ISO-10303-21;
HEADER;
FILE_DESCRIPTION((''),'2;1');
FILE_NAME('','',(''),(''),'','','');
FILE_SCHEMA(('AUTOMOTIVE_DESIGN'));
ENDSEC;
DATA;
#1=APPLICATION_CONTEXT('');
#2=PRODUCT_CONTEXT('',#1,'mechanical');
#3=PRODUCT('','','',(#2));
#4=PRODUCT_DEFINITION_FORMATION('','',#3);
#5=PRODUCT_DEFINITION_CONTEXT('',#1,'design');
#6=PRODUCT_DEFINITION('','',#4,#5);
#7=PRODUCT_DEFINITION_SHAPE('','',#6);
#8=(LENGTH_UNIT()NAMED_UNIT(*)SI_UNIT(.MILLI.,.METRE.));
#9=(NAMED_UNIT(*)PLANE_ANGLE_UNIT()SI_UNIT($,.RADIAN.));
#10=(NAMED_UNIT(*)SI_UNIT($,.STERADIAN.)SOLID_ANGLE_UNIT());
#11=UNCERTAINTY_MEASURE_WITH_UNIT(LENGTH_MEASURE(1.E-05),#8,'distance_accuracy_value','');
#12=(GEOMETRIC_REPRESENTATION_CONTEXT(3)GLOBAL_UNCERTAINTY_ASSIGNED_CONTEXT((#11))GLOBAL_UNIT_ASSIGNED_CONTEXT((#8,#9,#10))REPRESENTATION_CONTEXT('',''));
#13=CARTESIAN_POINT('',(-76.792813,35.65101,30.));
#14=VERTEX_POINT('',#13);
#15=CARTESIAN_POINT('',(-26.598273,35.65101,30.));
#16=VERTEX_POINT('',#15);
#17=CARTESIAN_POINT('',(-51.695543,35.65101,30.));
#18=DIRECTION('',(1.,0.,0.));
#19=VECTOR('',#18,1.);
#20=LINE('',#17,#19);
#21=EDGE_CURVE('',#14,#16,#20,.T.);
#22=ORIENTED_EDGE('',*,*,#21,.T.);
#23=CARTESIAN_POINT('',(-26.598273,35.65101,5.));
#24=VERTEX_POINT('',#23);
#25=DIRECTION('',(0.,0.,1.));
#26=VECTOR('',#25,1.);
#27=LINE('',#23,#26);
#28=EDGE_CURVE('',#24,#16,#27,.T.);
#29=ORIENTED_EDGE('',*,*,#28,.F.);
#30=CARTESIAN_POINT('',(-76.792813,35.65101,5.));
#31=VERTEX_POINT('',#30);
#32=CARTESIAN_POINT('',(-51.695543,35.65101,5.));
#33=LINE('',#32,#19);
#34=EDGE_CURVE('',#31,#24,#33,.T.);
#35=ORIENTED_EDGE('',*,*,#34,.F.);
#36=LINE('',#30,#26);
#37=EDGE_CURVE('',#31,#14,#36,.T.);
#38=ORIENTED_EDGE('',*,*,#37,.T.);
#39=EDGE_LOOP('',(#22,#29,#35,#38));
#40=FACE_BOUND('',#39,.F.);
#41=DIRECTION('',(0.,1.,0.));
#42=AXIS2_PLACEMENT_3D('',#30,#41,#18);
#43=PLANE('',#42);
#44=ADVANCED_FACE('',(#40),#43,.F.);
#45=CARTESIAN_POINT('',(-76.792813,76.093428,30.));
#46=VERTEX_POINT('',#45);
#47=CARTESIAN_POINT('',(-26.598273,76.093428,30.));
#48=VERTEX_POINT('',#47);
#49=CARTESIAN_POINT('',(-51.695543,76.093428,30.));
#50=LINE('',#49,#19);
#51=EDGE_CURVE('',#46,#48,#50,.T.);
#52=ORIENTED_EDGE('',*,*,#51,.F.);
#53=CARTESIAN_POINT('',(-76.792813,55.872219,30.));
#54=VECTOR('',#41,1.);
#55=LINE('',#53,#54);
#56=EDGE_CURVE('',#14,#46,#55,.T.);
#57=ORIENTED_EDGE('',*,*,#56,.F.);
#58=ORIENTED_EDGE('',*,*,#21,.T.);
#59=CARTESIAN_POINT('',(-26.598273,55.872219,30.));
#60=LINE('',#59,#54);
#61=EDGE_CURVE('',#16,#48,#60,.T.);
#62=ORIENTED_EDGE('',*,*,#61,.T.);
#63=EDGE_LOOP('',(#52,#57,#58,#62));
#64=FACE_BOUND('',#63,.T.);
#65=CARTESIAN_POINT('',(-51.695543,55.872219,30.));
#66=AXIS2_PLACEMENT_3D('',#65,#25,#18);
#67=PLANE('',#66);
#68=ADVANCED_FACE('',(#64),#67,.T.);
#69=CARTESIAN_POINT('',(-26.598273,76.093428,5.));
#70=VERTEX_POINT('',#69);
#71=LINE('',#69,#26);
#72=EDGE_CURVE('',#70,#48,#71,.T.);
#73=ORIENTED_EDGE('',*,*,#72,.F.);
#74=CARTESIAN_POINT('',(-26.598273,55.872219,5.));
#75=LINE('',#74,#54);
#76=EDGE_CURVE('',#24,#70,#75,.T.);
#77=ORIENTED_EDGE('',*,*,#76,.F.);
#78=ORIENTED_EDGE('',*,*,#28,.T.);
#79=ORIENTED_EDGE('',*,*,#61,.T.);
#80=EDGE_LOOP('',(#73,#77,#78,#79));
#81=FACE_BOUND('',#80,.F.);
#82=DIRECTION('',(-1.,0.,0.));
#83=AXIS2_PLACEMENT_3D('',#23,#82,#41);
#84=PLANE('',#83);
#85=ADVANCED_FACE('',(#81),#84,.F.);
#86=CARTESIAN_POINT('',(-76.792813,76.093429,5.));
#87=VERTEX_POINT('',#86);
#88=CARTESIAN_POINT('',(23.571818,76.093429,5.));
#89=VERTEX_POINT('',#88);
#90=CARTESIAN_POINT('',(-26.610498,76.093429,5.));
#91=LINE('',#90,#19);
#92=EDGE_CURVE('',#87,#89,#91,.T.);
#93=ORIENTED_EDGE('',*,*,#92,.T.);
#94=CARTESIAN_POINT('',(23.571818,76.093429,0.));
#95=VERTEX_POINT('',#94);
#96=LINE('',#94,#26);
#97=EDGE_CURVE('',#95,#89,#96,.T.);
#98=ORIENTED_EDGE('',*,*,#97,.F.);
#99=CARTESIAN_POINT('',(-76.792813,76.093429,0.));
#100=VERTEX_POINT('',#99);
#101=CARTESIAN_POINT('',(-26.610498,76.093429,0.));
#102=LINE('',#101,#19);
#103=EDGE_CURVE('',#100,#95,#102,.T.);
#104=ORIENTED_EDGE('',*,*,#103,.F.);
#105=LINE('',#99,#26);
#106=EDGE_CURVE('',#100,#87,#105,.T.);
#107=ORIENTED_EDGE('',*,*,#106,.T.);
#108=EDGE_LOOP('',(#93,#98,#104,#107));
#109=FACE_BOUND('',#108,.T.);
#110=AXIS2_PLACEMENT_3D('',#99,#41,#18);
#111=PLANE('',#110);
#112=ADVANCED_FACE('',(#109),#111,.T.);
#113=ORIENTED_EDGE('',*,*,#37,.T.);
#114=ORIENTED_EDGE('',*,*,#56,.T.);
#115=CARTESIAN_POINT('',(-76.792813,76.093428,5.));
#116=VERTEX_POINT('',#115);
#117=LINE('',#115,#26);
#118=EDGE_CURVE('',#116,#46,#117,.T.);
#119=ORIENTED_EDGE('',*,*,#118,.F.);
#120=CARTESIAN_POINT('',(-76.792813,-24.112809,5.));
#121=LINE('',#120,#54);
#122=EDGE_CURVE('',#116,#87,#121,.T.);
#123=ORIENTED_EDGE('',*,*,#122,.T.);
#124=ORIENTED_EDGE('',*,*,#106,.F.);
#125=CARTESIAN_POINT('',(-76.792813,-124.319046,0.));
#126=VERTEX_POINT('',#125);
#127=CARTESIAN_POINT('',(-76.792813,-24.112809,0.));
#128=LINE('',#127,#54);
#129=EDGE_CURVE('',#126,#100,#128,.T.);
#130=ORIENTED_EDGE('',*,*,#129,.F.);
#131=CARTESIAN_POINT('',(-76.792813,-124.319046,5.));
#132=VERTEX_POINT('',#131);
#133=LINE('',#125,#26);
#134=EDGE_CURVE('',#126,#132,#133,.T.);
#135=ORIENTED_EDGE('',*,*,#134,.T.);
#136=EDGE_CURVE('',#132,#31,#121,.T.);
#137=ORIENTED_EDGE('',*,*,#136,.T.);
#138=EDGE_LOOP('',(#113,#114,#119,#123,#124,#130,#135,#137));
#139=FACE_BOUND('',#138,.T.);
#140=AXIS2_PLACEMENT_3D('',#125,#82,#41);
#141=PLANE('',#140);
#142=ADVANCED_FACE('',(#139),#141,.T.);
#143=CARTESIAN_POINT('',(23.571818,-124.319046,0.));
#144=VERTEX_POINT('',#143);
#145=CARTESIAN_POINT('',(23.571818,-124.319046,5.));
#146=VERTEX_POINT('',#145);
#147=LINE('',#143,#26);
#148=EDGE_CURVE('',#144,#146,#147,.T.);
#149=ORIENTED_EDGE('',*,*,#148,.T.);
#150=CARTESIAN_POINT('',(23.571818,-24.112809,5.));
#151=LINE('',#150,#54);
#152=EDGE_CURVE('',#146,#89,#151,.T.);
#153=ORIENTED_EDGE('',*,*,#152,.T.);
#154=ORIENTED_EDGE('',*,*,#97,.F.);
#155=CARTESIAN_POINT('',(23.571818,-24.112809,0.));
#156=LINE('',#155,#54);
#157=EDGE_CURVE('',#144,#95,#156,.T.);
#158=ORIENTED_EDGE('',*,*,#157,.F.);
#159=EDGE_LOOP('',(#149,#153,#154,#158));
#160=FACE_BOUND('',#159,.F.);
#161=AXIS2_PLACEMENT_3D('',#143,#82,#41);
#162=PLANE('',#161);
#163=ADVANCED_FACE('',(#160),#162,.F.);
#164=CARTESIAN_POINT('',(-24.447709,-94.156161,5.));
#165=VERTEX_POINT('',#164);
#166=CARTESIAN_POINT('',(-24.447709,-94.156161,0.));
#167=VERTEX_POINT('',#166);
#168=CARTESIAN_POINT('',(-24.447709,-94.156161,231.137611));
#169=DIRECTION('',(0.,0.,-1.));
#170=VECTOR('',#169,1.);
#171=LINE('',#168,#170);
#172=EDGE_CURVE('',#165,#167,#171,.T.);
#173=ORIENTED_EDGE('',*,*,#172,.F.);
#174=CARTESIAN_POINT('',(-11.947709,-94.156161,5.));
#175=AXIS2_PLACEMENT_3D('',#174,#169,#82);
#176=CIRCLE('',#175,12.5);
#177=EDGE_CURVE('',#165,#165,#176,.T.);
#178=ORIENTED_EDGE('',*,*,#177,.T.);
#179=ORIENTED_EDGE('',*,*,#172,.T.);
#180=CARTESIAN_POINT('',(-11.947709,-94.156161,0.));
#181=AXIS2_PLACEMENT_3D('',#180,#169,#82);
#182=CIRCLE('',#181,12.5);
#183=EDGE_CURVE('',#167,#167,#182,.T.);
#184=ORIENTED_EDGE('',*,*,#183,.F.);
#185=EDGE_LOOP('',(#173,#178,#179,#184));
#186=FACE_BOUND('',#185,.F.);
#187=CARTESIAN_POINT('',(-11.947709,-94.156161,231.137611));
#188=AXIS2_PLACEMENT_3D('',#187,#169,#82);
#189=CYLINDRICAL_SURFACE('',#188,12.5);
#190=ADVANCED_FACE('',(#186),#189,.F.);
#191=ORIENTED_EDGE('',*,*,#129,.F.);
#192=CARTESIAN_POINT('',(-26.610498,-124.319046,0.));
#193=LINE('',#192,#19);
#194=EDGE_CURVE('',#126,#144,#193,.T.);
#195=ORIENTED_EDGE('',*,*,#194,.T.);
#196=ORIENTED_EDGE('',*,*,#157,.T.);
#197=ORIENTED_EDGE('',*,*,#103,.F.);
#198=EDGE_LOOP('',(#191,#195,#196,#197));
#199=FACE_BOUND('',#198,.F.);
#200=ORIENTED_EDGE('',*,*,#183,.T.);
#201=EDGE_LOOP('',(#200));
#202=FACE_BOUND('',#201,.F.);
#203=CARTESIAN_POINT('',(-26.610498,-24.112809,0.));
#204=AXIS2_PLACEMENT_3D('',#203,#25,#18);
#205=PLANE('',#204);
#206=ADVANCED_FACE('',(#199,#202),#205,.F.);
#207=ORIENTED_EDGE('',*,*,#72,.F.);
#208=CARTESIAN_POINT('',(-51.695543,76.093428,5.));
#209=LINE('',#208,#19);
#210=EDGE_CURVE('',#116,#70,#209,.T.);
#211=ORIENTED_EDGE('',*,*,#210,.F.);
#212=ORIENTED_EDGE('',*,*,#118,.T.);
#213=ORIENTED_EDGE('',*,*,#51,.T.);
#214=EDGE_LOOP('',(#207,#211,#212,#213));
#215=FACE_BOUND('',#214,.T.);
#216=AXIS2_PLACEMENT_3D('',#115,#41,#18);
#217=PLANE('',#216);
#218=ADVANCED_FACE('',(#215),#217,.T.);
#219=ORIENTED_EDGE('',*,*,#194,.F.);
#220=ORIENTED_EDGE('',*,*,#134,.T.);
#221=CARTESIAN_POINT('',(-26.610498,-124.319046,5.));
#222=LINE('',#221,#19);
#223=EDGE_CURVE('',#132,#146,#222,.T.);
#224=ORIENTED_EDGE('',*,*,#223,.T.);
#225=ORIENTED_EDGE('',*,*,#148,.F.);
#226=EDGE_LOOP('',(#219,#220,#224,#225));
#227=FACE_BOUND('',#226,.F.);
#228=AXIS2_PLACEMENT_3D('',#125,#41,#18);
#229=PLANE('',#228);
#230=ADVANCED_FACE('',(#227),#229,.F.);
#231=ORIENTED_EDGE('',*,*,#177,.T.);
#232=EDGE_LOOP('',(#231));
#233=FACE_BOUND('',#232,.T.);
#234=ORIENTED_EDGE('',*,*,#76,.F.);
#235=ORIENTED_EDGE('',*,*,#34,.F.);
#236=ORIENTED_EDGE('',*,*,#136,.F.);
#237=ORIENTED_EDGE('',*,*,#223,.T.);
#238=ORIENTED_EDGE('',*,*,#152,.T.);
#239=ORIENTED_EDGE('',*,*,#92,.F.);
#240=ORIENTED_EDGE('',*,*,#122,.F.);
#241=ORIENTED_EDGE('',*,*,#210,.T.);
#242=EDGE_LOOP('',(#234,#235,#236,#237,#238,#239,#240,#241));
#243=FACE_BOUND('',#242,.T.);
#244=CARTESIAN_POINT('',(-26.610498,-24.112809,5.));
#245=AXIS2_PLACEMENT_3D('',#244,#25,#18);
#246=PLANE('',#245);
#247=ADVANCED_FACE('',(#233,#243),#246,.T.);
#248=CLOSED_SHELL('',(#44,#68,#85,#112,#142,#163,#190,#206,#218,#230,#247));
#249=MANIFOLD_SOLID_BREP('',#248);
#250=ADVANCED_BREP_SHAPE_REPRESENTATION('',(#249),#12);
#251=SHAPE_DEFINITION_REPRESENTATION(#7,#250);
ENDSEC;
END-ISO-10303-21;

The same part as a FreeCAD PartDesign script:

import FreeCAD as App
import Part
import Sketcher

V = App.Vector
Q = App.Units.Quantity


def add_polygon(sketch, points):
    """Adds a closed chain of lines whose ends are joined by coincident constraints."""
    first, n = sketch.GeometryCount, len(points)
    for a, b in zip(points, points[1:] + points[:1]):
        sketch.addGeometry(Part.LineSegment(App.Vector(*a, 0), App.Vector(*b, 0)), False)
    for i in range(n):
        sketch.addConstraint(Sketcher.Constraint("Coincident", first + i, 2, first + (i + 1) % n, 1))

doc = App.newDocument("Part")
params = doc.addObject("Spreadsheet::Sheet", "Params")
for row, (alias, value) in enumerate([
    ("pad1_length", "5 mm"),
    ("pad2_length", "25 mm"),
    ("sketch3_diameter", "25 mm"),
    ("hole_diameter", "25 mm"),
], start=1):
    params.set(f"A{row}", alias)
    params.set(f"B{row}", "=" + value)
    params.setAlias(f"B{row}", alias)

body = doc.addObject("PartDesign::Body", "Body")

sketch1 = body.newObject("Sketcher::SketchObject", "Sketch")
sketch1.AttachmentSupport = (doc.getObject("XY_Plane"), [""])
sketch1.MapMode = "FlatFace"
add_polygon(sketch1, [(-77, 76), (-77, -124), (24, -124), (24, 76)])
sketch1.addConstraint([
    Sketcher.Constraint("Vertical", 0),
    Sketcher.Constraint("Horizontal", 1),
    Sketcher.Constraint("Vertical", 2),
    Sketcher.Constraint("Horizontal", 3),
    Sketcher.Constraint("DistanceX", 1, 1, 1, 2, Q("100.364631 mm")),
    Sketcher.Constraint("DistanceY", 0, 2, 0, 1, Q("200.412475 mm")),
    Sketcher.Constraint("DistanceY", -1, 1, 2, 2, Q("76.093429 mm")),
    Sketcher.Constraint("DistanceX", 0, 2, -1, 1, Q("76.792813 mm")),
])
pad1 = body.newObject("PartDesign::Pad", "Pad")
pad1.Profile = sketch1
pad1.setExpression("Length", "Params.pad1_length")

sketch2 = body.newObject("Sketcher::SketchObject", "Sketch001")
sketch2.AttachmentSupport = (doc.getObject("XY_Plane"), [""])
sketch2.MapMode = "FlatFace"
sketch2.AttachmentOffset = App.Placement(V(0, 0, 5), App.Rotation())
add_polygon(sketch2, [(-77, 76), (-77, 36), (-27, 36), (-27, 76)])
sketch2.addConstraint([
    Sketcher.Constraint("Vertical", 0),
    Sketcher.Constraint("Horizontal", 1),
    Sketcher.Constraint("Vertical", 2),
    Sketcher.Constraint("Horizontal", 3),
    Sketcher.Constraint("DistanceX", 1, 1, 1, 2, Q("50.194541 mm")),
    Sketcher.Constraint("DistanceY", 0, 2, 0, 1, Q("40.442418 mm")),
    Sketcher.Constraint("DistanceY", -1, 1, 0, 2, Q("35.65101 mm")),
    Sketcher.Constraint("DistanceX", 0, 2, -1, 1, Q("76.792813 mm")),
])
pad2 = body.newObject("PartDesign::Pad", "Pad001")
pad2.Profile = sketch2
pad2.setExpression("Length", "Params.pad2_length")

sketch3 = body.newObject("Sketcher::SketchObject", "Sketch002")
sketch3.AttachmentSupport = (doc.getObject("XY_Plane"), [""])
sketch3.MapMode = "FlatFace"
sketch3.AttachmentOffset = App.Placement(V(0, 0, 5), App.Rotation())
sketch3.addGeometry(Part.Circle(V(-12, -94, 0), V(0, 0, 1), 12), False)
sketch3.addConstraint([
    Sketcher.Constraint("Diameter", 0, Q("25 mm")),
    Sketcher.Constraint("DistanceX", 0, 3, -1, 1, Q("11.947709 mm")),
    Sketcher.Constraint("DistanceY", 0, 3, -1, 1, Q("94.156161 mm")),
])
sketch3.setExpression("Constraints[0]", "Params.sketch3_diameter")
doc.recompute()
hole = body.newObject("PartDesign::Hole", "Hole")
hole.Profile = sketch3
hole.ThreadType = "None"
hole.setExpression("Diameter", "Params.hole_diameter")
hole.DepthType = "ThroughAll"

doc.recompute()
